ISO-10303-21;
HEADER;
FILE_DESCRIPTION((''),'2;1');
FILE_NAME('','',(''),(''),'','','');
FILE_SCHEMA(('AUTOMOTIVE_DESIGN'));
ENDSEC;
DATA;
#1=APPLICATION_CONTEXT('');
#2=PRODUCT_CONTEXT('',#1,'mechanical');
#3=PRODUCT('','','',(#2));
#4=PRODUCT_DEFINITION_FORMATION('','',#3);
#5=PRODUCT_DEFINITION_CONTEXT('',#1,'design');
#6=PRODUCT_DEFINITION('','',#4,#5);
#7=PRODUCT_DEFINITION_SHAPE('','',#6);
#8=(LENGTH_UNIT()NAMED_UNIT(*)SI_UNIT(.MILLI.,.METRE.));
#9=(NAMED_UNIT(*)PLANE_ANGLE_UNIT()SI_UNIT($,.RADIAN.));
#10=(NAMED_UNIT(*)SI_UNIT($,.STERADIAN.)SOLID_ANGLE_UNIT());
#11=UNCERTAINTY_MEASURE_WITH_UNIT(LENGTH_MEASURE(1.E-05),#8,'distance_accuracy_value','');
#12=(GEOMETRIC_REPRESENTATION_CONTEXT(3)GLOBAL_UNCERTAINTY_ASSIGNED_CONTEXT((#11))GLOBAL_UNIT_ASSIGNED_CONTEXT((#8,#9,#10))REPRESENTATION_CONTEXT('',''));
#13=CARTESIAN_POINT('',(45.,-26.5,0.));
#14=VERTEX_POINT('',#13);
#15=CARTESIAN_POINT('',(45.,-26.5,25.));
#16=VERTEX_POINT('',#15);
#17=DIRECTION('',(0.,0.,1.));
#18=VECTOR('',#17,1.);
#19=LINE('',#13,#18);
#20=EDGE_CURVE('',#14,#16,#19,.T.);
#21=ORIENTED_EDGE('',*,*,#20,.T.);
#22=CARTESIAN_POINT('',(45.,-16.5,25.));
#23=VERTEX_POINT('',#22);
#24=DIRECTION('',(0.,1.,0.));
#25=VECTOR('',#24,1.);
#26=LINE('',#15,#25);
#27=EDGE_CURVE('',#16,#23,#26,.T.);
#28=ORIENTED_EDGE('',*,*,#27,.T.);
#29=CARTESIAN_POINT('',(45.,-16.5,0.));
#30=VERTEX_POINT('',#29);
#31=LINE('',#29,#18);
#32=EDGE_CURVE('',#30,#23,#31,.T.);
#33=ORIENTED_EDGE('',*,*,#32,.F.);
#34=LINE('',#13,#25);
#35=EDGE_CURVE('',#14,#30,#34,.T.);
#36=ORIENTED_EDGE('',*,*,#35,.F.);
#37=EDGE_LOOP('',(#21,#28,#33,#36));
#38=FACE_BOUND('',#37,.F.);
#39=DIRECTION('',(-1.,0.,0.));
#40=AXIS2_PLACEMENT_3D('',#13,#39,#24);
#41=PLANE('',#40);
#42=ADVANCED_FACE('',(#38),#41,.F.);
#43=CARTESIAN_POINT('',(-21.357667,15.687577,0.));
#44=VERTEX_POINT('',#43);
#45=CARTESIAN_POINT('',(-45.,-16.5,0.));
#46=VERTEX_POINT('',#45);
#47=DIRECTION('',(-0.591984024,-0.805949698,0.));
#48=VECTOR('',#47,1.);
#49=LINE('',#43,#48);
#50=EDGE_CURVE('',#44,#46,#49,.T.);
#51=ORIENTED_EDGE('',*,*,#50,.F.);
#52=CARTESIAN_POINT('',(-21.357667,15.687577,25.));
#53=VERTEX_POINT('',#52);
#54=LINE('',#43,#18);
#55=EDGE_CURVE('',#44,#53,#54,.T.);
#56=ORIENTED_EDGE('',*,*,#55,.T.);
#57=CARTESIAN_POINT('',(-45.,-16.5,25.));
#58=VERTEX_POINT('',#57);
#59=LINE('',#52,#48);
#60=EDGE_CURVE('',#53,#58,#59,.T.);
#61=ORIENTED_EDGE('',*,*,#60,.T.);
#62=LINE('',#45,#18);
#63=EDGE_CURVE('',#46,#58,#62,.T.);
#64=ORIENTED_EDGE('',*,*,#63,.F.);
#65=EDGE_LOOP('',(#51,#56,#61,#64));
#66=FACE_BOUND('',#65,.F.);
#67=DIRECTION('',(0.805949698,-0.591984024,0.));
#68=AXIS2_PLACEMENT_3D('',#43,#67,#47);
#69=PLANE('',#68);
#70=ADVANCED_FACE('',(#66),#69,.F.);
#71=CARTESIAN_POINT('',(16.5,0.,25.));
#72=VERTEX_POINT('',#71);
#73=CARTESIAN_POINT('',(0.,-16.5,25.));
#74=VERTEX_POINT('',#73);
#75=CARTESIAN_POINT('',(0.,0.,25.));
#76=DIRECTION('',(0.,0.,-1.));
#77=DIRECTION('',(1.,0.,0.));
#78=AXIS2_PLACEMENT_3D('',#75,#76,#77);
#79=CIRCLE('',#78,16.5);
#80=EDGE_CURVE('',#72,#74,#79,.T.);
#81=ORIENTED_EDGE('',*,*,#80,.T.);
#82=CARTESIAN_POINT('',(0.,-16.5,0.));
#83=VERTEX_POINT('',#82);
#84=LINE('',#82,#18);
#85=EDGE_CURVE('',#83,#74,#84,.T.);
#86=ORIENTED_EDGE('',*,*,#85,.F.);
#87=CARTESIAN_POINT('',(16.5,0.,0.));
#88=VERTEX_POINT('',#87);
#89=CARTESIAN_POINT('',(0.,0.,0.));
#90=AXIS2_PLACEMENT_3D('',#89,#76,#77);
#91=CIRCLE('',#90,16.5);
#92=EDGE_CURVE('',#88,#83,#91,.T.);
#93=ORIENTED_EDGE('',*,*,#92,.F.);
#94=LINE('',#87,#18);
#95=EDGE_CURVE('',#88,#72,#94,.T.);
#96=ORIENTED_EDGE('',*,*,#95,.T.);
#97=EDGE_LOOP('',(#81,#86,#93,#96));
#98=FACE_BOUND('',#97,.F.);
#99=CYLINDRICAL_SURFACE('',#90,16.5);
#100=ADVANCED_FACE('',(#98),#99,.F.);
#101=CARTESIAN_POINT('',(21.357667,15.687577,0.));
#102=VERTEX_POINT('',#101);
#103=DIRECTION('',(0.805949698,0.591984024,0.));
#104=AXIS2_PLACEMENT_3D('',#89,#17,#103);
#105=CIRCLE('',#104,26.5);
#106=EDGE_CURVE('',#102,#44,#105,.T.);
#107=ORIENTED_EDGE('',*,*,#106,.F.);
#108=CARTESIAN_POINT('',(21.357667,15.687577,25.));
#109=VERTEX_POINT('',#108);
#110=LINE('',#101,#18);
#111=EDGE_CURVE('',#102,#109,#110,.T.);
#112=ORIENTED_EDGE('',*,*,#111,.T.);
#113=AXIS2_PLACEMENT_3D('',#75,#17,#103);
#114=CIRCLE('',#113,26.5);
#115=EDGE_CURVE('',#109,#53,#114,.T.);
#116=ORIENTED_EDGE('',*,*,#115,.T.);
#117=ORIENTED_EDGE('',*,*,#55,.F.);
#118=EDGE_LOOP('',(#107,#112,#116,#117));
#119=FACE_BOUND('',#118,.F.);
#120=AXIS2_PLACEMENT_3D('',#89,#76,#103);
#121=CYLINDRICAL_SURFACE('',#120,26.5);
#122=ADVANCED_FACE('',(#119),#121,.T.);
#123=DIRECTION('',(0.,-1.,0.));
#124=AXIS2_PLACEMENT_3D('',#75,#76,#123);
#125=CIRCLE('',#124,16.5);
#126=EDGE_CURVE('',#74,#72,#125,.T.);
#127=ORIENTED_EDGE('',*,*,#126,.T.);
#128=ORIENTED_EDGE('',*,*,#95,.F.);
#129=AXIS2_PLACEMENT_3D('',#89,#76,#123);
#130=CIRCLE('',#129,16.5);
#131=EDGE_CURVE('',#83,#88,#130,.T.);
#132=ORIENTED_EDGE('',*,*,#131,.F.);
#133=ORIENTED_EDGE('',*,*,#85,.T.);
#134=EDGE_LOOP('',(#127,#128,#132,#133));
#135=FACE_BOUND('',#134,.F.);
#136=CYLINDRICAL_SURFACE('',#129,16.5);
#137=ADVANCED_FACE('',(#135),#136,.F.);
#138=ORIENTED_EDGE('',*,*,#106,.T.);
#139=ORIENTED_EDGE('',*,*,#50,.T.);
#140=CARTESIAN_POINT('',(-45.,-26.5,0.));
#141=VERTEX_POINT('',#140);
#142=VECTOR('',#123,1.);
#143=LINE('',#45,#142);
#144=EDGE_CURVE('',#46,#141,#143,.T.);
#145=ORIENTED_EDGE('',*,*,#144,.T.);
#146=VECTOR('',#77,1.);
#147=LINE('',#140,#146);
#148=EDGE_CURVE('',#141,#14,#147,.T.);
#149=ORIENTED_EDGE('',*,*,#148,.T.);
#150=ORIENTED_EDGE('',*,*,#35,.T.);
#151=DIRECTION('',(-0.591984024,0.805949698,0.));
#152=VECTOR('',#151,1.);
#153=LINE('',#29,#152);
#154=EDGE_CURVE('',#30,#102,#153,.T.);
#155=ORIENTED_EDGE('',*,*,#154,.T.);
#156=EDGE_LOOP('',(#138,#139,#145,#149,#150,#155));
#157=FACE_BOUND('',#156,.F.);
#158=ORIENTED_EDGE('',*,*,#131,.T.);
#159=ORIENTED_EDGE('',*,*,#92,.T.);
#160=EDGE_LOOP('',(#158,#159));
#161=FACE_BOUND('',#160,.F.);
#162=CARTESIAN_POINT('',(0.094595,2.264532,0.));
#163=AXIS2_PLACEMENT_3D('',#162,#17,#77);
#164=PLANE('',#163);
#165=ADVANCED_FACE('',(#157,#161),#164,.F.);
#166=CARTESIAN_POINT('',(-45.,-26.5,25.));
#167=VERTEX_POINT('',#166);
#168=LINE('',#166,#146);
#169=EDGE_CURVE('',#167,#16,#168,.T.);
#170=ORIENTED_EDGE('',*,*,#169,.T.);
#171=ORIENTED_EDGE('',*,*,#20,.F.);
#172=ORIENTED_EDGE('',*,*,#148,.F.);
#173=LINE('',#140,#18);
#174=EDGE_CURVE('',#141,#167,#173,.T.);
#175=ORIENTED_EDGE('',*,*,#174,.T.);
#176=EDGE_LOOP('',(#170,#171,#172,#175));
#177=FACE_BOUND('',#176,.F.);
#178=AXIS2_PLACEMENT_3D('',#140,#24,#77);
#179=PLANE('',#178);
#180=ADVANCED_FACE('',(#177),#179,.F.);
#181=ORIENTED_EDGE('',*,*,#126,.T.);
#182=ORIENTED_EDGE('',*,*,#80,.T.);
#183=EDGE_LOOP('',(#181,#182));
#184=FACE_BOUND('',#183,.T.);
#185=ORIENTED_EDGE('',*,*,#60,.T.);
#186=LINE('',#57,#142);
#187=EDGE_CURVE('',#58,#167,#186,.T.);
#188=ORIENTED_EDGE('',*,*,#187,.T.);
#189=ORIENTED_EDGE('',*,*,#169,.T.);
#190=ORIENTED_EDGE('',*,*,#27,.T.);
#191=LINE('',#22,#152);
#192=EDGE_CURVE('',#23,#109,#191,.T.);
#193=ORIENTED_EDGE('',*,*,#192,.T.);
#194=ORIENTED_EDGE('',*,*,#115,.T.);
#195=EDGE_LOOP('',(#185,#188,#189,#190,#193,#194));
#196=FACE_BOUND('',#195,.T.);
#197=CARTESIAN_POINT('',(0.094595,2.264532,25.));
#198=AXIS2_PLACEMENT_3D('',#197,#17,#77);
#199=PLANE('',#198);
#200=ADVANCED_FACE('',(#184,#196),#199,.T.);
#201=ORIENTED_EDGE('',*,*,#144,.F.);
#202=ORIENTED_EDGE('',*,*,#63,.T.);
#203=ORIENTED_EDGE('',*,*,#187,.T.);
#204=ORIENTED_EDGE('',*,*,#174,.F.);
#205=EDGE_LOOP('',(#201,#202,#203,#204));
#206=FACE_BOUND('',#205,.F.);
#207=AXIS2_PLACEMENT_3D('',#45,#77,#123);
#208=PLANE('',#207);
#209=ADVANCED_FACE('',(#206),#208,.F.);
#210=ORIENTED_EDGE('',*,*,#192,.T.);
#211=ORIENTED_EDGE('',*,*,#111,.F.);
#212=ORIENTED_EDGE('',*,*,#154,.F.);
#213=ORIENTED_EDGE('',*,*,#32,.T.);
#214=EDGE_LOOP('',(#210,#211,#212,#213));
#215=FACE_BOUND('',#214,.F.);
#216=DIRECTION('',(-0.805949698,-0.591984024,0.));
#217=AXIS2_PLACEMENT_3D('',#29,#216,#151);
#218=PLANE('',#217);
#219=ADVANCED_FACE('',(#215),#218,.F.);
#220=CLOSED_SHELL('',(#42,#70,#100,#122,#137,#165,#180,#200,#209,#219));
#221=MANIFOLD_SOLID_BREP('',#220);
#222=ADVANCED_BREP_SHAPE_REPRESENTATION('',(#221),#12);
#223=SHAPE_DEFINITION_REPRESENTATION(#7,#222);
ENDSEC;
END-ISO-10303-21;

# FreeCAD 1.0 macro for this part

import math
import FreeCAD as App
import Part
import Sketcher

V = App.Vector

doc = App.newDocument("Part")
body = doc.addObject("PartDesign::Body", "Body")

# Sketch on XY plane
sketch1 = body.newObject("Sketcher::SketchObject", "Sketch")
sketch1.AttachmentSupport = (doc.getObject("XY_Plane"), [""])
sketch1.MapMode = "FlatFace"
sketch1.addGeometry(Part.LineSegment(V(-45, -16, 0), V(-45, -26, 0)), False)
sketch1.addGeometry(Part.LineSegment(V(-45, -26, 0), V(45, -26, 0)), False)
sketch1.addGeometry(Part.LineSegment(V(45, -26, 0), V(45, -16, 0)), False)
sketch1.addGeometry(Part.LineSegment(V(45, -16, 0), V(21, 16, 0)), False)
sketch1.addGeometry(Part.ArcOfCircle(Part.Circle(V(0, 0, 0), V(0, 0, 1), 26), math.radians(36), math.radians(144)), False)
sketch1.addGeometry(Part.LineSegment(V(-21, 16, 0), V(-45, -16, 0)), False)
sketch1.addGeometry(Part.ArcOfCircle(Part.Circle(V(0, 0, 0), V(0, 0, 1), 16), math.radians(-90), math.radians(0)), False)
sketch1.addGeometry(Part.ArcOfCircle(Part.Circle(V(0, 0, 0), V(0, 0, 1), 16), math.radians(0), math.radians(270)), False)
sketch1.addConstraint(Sketcher.Constraint("Coincident", 0, 2, 1, 1))
sketch1.addConstraint(Sketcher.Constraint("Coincident", 1, 2, 2, 1))
sketch1.addConstraint(Sketcher.Constraint("Coincident", 2, 2, 3, 1))
sketch1.addConstraint(Sketcher.Constraint("Tangent", 3, 2, 4, 1))
sketch1.addConstraint(Sketcher.Constraint("Tangent", 4, 2, 5, 1))
sketch1.addConstraint(Sketcher.Constraint("Coincident", 5, 2, 0, 1))
sketch1.addConstraint(Sketcher.Constraint("Tangent", 6, 1, 7, 2))
sketch1.addConstraint(Sketcher.Constraint("Coincident", 7, 1, 6, 2))
sketch1.addConstraint(Sketcher.Constraint("Vertical", 0))
sketch1.addConstraint(Sketcher.Constraint("Horizontal", 1))
sketch1.addConstraint(Sketcher.Constraint("Vertical", 2))
sketch1.addConstraint(Sketcher.Constraint("Coincident", 4, 3, -1, 1))
sketch1.addConstraint(Sketcher.Constraint("Coincident", 6, 3, -1, 1))
sketch1.addConstraint(Sketcher.Constraint("Symmetric", 2, 2, 5, 2, -2))
sketch1.addConstraint(Sketcher.Constraint("PointOnObject", 6, 1, -2))
sketch1.addConstraint(Sketcher.Constraint("PointOnObject", 7, 1, -1))
sketch1.addConstraint(Sketcher.Constraint("Horizontal", 5, 2, 6, 1))
sketch1.addConstraint(Sketcher.Constraint("Radius", 4, 26.5))
sketch1.addConstraint(Sketcher.Constraint("Radius", 6, 16.5))
sketch1.addConstraint(Sketcher.Constraint("DistanceX", 1, 1, 1, 2, 90.0))
sketch1.addConstraint(Sketcher.Constraint("DistanceY", 0, 2, 0, 1, 10.0))
pad1 = body.newObject("PartDesign::Pad", "Pad")
pad1.Profile = sketch1
pad1.Length = 25

doc.recompute()
